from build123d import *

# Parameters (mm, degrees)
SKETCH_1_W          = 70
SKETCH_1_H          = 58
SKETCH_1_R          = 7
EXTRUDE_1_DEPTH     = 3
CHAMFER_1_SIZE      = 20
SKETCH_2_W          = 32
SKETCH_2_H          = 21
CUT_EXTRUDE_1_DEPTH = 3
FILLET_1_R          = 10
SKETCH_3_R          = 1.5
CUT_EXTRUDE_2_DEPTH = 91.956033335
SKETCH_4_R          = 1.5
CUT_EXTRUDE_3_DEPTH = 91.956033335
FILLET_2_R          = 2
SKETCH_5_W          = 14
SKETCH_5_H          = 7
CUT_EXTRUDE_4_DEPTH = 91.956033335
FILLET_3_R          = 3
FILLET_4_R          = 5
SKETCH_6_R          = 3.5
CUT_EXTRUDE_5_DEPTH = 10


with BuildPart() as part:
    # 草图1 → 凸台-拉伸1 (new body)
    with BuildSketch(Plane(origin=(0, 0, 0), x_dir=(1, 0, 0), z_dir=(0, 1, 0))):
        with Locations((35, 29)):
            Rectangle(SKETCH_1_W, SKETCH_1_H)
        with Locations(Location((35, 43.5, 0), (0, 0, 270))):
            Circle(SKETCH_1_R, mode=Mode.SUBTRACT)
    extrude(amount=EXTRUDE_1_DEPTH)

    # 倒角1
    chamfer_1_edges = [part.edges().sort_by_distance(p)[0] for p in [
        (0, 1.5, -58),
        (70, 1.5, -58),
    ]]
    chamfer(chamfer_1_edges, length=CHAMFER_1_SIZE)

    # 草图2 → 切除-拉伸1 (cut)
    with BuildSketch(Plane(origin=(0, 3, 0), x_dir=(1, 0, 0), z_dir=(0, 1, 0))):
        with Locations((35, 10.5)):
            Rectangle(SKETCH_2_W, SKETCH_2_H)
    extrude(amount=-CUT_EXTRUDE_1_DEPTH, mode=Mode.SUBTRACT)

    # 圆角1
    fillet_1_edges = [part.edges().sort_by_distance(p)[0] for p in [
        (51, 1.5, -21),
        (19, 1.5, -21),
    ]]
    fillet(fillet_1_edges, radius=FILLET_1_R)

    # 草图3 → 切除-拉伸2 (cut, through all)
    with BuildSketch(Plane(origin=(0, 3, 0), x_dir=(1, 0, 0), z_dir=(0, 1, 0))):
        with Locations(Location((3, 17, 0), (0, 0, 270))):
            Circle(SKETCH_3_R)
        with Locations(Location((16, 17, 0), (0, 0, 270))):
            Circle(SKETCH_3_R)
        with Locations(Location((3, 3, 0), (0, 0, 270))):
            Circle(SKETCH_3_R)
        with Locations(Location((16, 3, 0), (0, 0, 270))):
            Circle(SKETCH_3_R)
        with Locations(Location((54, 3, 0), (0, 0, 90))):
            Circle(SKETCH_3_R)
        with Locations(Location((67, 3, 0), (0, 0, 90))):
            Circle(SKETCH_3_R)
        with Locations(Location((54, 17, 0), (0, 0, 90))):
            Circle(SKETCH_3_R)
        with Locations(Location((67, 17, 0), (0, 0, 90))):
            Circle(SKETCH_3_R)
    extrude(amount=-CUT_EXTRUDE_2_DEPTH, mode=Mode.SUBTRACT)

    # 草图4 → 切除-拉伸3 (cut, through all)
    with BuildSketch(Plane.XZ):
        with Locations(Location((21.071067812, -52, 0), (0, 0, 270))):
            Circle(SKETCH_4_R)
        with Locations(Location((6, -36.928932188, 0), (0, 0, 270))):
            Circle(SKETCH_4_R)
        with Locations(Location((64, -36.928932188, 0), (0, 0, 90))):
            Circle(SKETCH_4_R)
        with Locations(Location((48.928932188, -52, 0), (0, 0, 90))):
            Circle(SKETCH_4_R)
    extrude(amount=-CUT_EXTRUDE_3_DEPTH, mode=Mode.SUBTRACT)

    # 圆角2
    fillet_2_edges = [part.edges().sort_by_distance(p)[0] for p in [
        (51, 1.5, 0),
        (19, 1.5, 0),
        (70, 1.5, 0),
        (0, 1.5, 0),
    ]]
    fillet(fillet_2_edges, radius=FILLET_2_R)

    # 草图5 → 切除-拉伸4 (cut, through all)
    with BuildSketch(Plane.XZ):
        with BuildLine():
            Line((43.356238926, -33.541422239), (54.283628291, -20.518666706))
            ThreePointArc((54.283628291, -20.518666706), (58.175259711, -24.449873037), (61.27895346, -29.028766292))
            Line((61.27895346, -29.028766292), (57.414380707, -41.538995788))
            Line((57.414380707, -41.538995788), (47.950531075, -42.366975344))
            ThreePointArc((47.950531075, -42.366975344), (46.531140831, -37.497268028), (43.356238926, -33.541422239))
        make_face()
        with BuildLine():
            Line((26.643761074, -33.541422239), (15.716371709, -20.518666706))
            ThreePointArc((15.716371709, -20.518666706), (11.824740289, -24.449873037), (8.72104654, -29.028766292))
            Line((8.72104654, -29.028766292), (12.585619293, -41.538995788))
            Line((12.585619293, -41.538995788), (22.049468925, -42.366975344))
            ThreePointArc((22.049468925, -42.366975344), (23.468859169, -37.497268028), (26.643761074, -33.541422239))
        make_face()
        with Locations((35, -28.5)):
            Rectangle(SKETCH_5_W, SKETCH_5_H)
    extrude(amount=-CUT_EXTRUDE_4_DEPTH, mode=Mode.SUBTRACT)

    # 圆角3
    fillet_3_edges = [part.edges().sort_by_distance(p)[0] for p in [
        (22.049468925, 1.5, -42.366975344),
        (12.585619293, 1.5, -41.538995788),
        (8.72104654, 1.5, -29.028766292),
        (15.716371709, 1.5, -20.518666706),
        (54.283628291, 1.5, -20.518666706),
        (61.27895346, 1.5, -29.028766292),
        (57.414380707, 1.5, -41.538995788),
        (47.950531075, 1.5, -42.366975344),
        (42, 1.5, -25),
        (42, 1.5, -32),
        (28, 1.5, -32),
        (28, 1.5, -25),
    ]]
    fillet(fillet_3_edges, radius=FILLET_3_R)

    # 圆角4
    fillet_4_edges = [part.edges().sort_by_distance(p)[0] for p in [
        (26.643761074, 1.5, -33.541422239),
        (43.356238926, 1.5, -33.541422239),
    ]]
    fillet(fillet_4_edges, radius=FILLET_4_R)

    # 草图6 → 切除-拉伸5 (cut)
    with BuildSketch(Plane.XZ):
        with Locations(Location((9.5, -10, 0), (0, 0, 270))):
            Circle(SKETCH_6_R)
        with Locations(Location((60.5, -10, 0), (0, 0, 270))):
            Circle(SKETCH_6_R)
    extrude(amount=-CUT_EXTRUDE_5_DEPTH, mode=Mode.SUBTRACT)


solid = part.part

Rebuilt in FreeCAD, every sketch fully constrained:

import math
import FreeCAD as App
import Part
import Sketcher
Q = App.Units.Quantity


def edges_at(feature, points):
    """Names of the edges that pass closest to the given points."""
    edges = feature.Shape.Edges
    near = lambda p: min(range(len(edges)), key=lambda i: edges[i].distToShape(Part.Vertex(*p))[0])
    return sorted({f"Edge{near(p) + 1}" for p in points})


def add_polygon(sketch, points):
    """Adds a closed chain of lines whose ends are joined by coincident constraints."""
    first, n = sketch.GeometryCount, len(points)
    for a, b in zip(points, points[1:] + points[:1]):
        sketch.addGeometry(Part.LineSegment(App.Vector(*a, 0), App.Vector(*b, 0)), False)
    for i in range(n):
        sketch.addConstraint(Sketcher.Constraint("Coincident", first + i, 2, first + (i + 1) % n, 1))

doc = App.newDocument("Part")
body = doc.addObject("PartDesign::Body", "Body")

sketch1 = body.newObject("Sketcher::SketchObject", "Sketch")
sketch1.AttachmentSupport = (doc.getObject("XZ_Plane"), [""])
sketch1.MapMode = "FlatFace"
add_polygon(sketch1, [(0, -58), (0, 0), (70, 0), (70, -58)])
sketch1.addGeometry(Part.Circle(App.Vector(35, -44, 0), App.Vector(0, 0, 1), 7), False)
sketch1.addConstraint([
    Sketcher.Constraint("Vertical", 0),
    Sketcher.Constraint("Horizontal", 1),
    Sketcher.Constraint("Vertical", 2),
    Sketcher.Constraint("Horizontal", 3),
    Sketcher.Constraint("Coincident", 0, 2, -1, 1),
    Sketcher.Constraint("Diameter", 4, 14.0),
    Sketcher.Constraint("DistanceX", 1, 1, 1, 2, 70.0),
    Sketcher.Constraint("DistanceY", 0, 1, 0, 2, 58.0),
    Sketcher.Constraint("DistanceX", -1, 1, 4, 3, 35.0),
    Sketcher.Constraint("DistanceY", 4, 3, -1, 1, 43.5),
])
pad1 = body.newObject("PartDesign::Pad", "Pad")
pad1.Profile = sketch1
pad1.Length = 3
pad1.Reversed = True
doc.recompute()

chamfer = body.newObject("PartDesign::Chamfer", "Chamfer")
chamfer.Base = (pad1, edges_at(pad1, [(0, 1.5, -58), (70, 1.5, -58)]))
chamfer.Size = 20

sketch2 = body.newObject("Sketcher::SketchObject", "Sketch001")
sketch2.AttachmentSupport = (doc.getObject("XZ_Plane"), [""])
sketch2.MapMode = "FlatFace"
sketch2.AttachmentOffset = App.Placement(App.Vector(0, 0, -3), App.Rotation())
add_polygon(sketch2, [(19, -21), (19, 0), (51, 0), (51, -21)])
sketch2.addConstraint([
    Sketcher.Constraint("Vertical", 0),
    Sketcher.Constraint("Horizontal", 1),
    Sketcher.Constraint("Vertical", 2),
    Sketcher.Constraint("Horizontal", 3),
    Sketcher.Constraint("PointOnObject", 0, 2, -1),
    Sketcher.Constraint("DistanceX", 1, 1, 1, 2, 32.0),
    Sketcher.Constraint("DistanceY", 0, 1, 0, 2, 21.0),
    Sketcher.Constraint("DistanceX", -1, 1, 0, 2, 19.0),
])
pocket1 = body.newObject("PartDesign::Pocket", "Pocket")
pocket1.Profile = sketch2
pocket1.Length = 3
pocket1.Reversed = True
doc.recompute()

fillet = body.newObject("PartDesign::Fillet", "Fillet")
fillet.Base = (pocket1, edges_at(pocket1, [(51, 1.5, -21), (19, 1.5, -21)]))
fillet.Radius = 10

sketch3 = body.newObject("Sketcher::SketchObject", "Sketch002")
sketch3.AttachmentSupport = (doc.getObject("XZ_Plane"), [""])
sketch3.MapMode = "FlatFace"
sketch3.AttachmentOffset = App.Placement(App.Vector(0, 0, -3), App.Rotation())
sketch3.addGeometry([
    Part.Circle(App.Vector(3, -17, 0), App.Vector(0, 0, 1), 1.5),
    Part.Circle(App.Vector(16, -17, 0), App.Vector(0, 0, 1), 1.5),
    Part.Circle(App.Vector(3, -3, 0), App.Vector(0, 0, 1), 1.5),
    Part.Circle(App.Vector(16, -3, 0), App.Vector(0, 0, 1), 1.5),
    Part.Circle(App.Vector(54, -3, 0), App.Vector(0, 0, 1), 1.5),
    Part.Circle(App.Vector(67, -3, 0), App.Vector(0, 0, 1), 1.5),
    Part.Circle(App.Vector(54, -17, 0), App.Vector(0, 0, 1), 1.5),
    Part.Circle(App.Vector(67, -17, 0), App.Vector(0, 0, 1), 1.5),
], False)
sketch3.addConstraint([
    Sketcher.Constraint("Equal", 0, 1),
    Sketcher.Constraint("Equal", 1, 2),
    Sketcher.Constraint("Equal", 2, 3),
    Sketcher.Constraint("Equal", 3, 4),
    Sketcher.Constraint("Equal", 4, 5),
    Sketcher.Constraint("Equal", 5, 6),
    Sketcher.Constraint("Equal", 6, 7),
    Sketcher.Constraint("Horizontal", 0, 3, 1, 3),
    Sketcher.Constraint("Horizontal", 2, 3, 3, 3),
    Sketcher.Constraint("Horizontal", 3, 3, 4, 3),
    Sketcher.Constraint("Horizontal", 4, 3, 5, 3),
    Sketcher.Constraint("Horizontal", 1, 3, 6, 3),
    Sketcher.Constraint("Horizontal", 6, 3, 7, 3),
    Sketcher.Constraint("Vertical", 0, 3, 2, 3),
    Sketcher.Constraint("Vertical", 1, 3, 3, 3),
    Sketcher.Constraint("Vertical", 4, 3, 6, 3),
    Sketcher.Constraint("Vertical", 5, 3, 7, 3),
    Sketcher.Constraint("Diameter", 0, 3.0),
    Sketcher.Constraint("DistanceX", -1, 1, 0, 3, 3.0),
    Sketcher.Constraint("DistanceY", 0, 3, -1, 1, 17.0),
    Sketcher.Constraint("DistanceX", -1, 1, 1, 3, 16.0),
    Sketcher.Constraint("DistanceY", 2, 3, -1, 1, 3.0),
    Sketcher.Constraint("DistanceX", -1, 1, 4, 3, 54.0),
    Sketcher.Constraint("DistanceX", -1, 1, 5, 3, 67.0),
])
pocket2 = body.newObject("PartDesign::Pocket", "Pocket001")
pocket2.Profile = sketch3
pocket2.Type = "ThroughAll"
pocket2.Reversed = True

sketch4 = body.newObject("Sketcher::SketchObject", "Sketch003")
sketch4.AttachmentSupport = (doc.getObject("XZ_Plane"), [""])
sketch4.MapMode = "FlatFace"
sketch4.addGeometry([
    Part.Circle(App.Vector(21.1, -52, 0), App.Vector(0, 0, 1), 1.5),
    Part.Circle(App.Vector(6, -36.9, 0), App.Vector(0, 0, 1), 1.5),
    Part.Circle(App.Vector(64, -36.9, 0), App.Vector(0, 0, 1), 1.5),
    Part.Circle(App.Vector(48.9, -52, 0), App.Vector(0, 0, 1), 1.5),
], False)
sketch4.addConstraint([
    Sketcher.Constraint("Equal", 0, 1),
    Sketcher.Constraint("Equal", 1, 2),
    Sketcher.Constraint("Equal", 2, 3),
    Sketcher.Constraint("Horizontal", 1, 3, 2, 3),
    Sketcher.Constraint("Horizontal", 0, 3, 3, 3),
    Sketcher.Constraint("Diameter", 0, 3.0),
    Sketcher.Constraint("DistanceY", 0, 3, -1, 1, 52.0),
    Sketcher.Constraint("DistanceX", -1, 1, 1, 3, 6.0),
    Sketcher.Constraint("DistanceX", -1, 1, 2, 3, 64.0),
    Sketcher.Constraint("DistanceX", -1, 1, 0, 3, 21.071068),
    Sketcher.Constraint("DistanceY", 1, 3, -1, 1, 36.928932),
    Sketcher.Constraint("DistanceX", -1, 1, 3, 3, 48.928932),
])
pocket3 = body.newObject("PartDesign::Pocket", "Pocket002")
pocket3.Profile = sketch4
pocket3.Type = "ThroughAll"
doc.recompute()

fillet2 = body.newObject("PartDesign::Fillet", "Fillet001")
fillet2.Base = (pocket3, edges_at(pocket3, [
    (51, 1.5, 0),
    (19, 1.5, 0),
    (70, 1.5, 0),
    (0, 1.5, 0),
]))
fillet2.Radius = 2

sketch5 = body.newObject("Sketcher::SketchObject", "Sketch004")
sketch5.AttachmentSupport = (doc.getObject("XZ_Plane"), [""])
sketch5.MapMode = "FlatFace"
sketch5.addGeometry(Part.LineSegment(App.Vector(54, -21, 0), App.Vector(43, -34, 0)), False)
sketch5.addGeometry(Part.ArcOfCircle(Part.Circle(App.Vector(35, -44, 0), App.Vector(0, 0, 1), 13), math.radians(5), math.radians(50)), False)
sketch5.addGeometry(Part.LineSegment(App.Vector(48, -42, 0), App.Vector(57, -42, 0)), False)
sketch5.addGeometry(Part.LineSegment(App.Vector(57, -42, 0), App.Vector(61, -29, 0)), False)
sketch5.addGeometry(Part.ArcOfCircle(Part.Circle(App.Vector(35, -44, 0), App.Vector(0, 0, 1), 30), math.radians(29), math.radians(50)), False)
sketch5.addGeometry(Part.LineSegment(App.Vector(27, -34, 0), App.Vector(16, -21, 0)), False)
sketch5.addGeometry(Part.ArcOfCircle(Part.Circle(App.Vector(35, -44, 0), App.Vector(0, 0, 1), 30), math.radians(130), math.radians(151)), False)
sketch5.addGeometry(Part.LineSegment(App.Vector(9, -29, 0), App.Vector(13, -42, 0)), False)
sketch5.addGeometry(Part.LineSegment(App.Vector(13, -42, 0), App.Vector(22, -42, 0)), False)
sketch5.addGeometry(Part.ArcOfCircle(Part.Circle(App.Vector(35, -44, 0), App.Vector(0, 0, 1), 13), math.radians(130), math.radians(175)), False)
add_polygon(sketch5, [(28, -25), (28, -32), (42, -32), (42, -25)])
sketch5.addConstraint([
    Sketcher.Constraint("Coincident", 0, 2, 1, 2),
    Sketcher.Constraint("Coincident", 1, 1, 2, 1),
    Sketcher.Constraint("Coincident", 2, 2, 3, 1),
    Sketcher.Constraint("Coincident", 3, 2, 4, 1),
    Sketcher.Constraint("Coincident", 4, 2, 0, 1),
    Sketcher.Constraint("Coincident", 5, 2, 6, 1),
    Sketcher.Constraint("Coincident", 6, 2, 7, 1),
    Sketcher.Constraint("Coincident", 7, 2, 8, 1),
    Sketcher.Constraint("Coincident", 8, 2, 9, 2),
    Sketcher.Constraint("Coincident", 9, 1, 5, 1),
    Sketcher.Constraint("Vertical", 10),
    Sketcher.Constraint("Horizontal", 11),
    Sketcher.Constraint("Vertical", 12),
    Sketcher.Constraint("Horizontal", 13),
    Sketcher.Constraint("Coincident", 4, 3, 1, 3),
    Sketcher.Constraint("Coincident", 6, 3, 1, 3),
    Sketcher.Constraint("Coincident", 9, 3, 1, 3),
    Sketcher.Constraint("Equal", 4, 6),
    Sketcher.Constraint("Equal", 1, 9),
    Sketcher.Constraint("Horizontal", 4, 2, 5, 2),
    Sketcher.Constraint("Horizontal", 3, 2, 6, 2),
    Sketcher.Constraint("Horizontal", 2, 2, 7, 2),
    Sketcher.Constraint("Horizontal", 1, 1, 8, 2),
    Sketcher.Constraint("Horizontal", 0, 2, 9, 1),
    Sketcher.Constraint("Equal", 3, 7),
    Sketcher.Constraint("Radius", 1, 13.0),
    Sketcher.Constraint("Radius", 4, 30.0),
    Sketcher.Constraint("DistanceX", 11, 1, 11, 2, 14.0),
    Sketcher.Constraint("DistanceY", 10, 2, 10, 1, 7.0),
    Sketcher.Constraint("Angle", 0, Q("-130 deg")),
    Sketcher.Constraint("Angle", 2, Q("5 deg")),
    Sketcher.Constraint("DistanceX", -1, 1, 1, 3, 35.0),
    Sketcher.Constraint("DistanceX", -1, 1, 10, 2, 28.0),
    Sketcher.Constraint("DistanceY", 10, 2, -1, 1, 32.0),
    Sketcher.Constraint("Distance", 2, 9.5),
    Sketcher.Constraint("DistanceY", 1, 3, -1, 1, 43.5),
    Sketcher.Constraint("DistanceY", 3, 2, 4, 2, 8.5101),
    Sketcher.Constraint("Distance", 3, 13.093539),
    Sketcher.Constraint("DistanceX", -1, 1, 0, 2, 43.356239),
])
pocket4 = body.newObject("PartDesign::Pocket", "Pocket003")
pocket4.Profile = sketch5
pocket4.Type = "ThroughAll"
doc.recompute()

fillet3 = body.newObject("PartDesign::Fillet", "Fillet002")
fillet3.Base = (pocket4, edges_at(pocket4, [
    (22.049, 1.5, -42.367),
    (12.586, 1.5, -41.539),
    (8.721, 1.5, -29.029),
    (15.716, 1.5, -20.519),
    (54.284, 1.5, -20.519),
    (61.279, 1.5, -29.029),
    (57.414, 1.5, -41.539),
    (47.951, 1.5, -42.367),
    (42, 1.5, -25),
    (42, 1.5, -32),
    (28, 1.5, -32),
    (28, 1.5, -25),
]))
fillet3.Radius = 3
doc.recompute()

fillet4 = body.newObject("PartDesign::Fillet", "Fillet003")
fillet4.Base = (fillet3, edges_at(fillet3, [(26.644, 1.5, -33.541), (43.356, 1.5, -33.541)]))
fillet4.Radius = 5

sketch6 = body.newObject("Sketcher::SketchObject", "Sketch005")
sketch6.AttachmentSupport = (doc.getObject("XZ_Plane"), [""])
sketch6.MapMode = "FlatFace"
sketch6.addGeometry([
    Part.Circle(App.Vector(9.5, -10, 0), App.Vector(0, 0, 1), 3.5),
    Part.Circle(App.Vector(60.5, -10, 0), App.Vector(0, 0, 1), 3.5),
], False)
sketch6.addConstraint([
    Sketcher.Constraint("Equal", 0, 1),
    Sketcher.Constraint("Horizontal", 0, 3, 1, 3),
    Sketcher.Constraint("Diameter", 0, 7.0),
    Sketcher.Constraint("DistanceY", 0, 3, -1, 1, 10.0),
    Sketcher.Constraint("DistanceX", 0, 3, 1, 3, 51.0),
    Sketcher.Constraint("DistanceX", -1, 1, 0, 3, 9.5),
])
pocket5 = body.newObject("PartDesign::Pocket", "Pocket004")
pocket5.Profile = sketch6
pocket5.Length = 10

doc.recompute()
